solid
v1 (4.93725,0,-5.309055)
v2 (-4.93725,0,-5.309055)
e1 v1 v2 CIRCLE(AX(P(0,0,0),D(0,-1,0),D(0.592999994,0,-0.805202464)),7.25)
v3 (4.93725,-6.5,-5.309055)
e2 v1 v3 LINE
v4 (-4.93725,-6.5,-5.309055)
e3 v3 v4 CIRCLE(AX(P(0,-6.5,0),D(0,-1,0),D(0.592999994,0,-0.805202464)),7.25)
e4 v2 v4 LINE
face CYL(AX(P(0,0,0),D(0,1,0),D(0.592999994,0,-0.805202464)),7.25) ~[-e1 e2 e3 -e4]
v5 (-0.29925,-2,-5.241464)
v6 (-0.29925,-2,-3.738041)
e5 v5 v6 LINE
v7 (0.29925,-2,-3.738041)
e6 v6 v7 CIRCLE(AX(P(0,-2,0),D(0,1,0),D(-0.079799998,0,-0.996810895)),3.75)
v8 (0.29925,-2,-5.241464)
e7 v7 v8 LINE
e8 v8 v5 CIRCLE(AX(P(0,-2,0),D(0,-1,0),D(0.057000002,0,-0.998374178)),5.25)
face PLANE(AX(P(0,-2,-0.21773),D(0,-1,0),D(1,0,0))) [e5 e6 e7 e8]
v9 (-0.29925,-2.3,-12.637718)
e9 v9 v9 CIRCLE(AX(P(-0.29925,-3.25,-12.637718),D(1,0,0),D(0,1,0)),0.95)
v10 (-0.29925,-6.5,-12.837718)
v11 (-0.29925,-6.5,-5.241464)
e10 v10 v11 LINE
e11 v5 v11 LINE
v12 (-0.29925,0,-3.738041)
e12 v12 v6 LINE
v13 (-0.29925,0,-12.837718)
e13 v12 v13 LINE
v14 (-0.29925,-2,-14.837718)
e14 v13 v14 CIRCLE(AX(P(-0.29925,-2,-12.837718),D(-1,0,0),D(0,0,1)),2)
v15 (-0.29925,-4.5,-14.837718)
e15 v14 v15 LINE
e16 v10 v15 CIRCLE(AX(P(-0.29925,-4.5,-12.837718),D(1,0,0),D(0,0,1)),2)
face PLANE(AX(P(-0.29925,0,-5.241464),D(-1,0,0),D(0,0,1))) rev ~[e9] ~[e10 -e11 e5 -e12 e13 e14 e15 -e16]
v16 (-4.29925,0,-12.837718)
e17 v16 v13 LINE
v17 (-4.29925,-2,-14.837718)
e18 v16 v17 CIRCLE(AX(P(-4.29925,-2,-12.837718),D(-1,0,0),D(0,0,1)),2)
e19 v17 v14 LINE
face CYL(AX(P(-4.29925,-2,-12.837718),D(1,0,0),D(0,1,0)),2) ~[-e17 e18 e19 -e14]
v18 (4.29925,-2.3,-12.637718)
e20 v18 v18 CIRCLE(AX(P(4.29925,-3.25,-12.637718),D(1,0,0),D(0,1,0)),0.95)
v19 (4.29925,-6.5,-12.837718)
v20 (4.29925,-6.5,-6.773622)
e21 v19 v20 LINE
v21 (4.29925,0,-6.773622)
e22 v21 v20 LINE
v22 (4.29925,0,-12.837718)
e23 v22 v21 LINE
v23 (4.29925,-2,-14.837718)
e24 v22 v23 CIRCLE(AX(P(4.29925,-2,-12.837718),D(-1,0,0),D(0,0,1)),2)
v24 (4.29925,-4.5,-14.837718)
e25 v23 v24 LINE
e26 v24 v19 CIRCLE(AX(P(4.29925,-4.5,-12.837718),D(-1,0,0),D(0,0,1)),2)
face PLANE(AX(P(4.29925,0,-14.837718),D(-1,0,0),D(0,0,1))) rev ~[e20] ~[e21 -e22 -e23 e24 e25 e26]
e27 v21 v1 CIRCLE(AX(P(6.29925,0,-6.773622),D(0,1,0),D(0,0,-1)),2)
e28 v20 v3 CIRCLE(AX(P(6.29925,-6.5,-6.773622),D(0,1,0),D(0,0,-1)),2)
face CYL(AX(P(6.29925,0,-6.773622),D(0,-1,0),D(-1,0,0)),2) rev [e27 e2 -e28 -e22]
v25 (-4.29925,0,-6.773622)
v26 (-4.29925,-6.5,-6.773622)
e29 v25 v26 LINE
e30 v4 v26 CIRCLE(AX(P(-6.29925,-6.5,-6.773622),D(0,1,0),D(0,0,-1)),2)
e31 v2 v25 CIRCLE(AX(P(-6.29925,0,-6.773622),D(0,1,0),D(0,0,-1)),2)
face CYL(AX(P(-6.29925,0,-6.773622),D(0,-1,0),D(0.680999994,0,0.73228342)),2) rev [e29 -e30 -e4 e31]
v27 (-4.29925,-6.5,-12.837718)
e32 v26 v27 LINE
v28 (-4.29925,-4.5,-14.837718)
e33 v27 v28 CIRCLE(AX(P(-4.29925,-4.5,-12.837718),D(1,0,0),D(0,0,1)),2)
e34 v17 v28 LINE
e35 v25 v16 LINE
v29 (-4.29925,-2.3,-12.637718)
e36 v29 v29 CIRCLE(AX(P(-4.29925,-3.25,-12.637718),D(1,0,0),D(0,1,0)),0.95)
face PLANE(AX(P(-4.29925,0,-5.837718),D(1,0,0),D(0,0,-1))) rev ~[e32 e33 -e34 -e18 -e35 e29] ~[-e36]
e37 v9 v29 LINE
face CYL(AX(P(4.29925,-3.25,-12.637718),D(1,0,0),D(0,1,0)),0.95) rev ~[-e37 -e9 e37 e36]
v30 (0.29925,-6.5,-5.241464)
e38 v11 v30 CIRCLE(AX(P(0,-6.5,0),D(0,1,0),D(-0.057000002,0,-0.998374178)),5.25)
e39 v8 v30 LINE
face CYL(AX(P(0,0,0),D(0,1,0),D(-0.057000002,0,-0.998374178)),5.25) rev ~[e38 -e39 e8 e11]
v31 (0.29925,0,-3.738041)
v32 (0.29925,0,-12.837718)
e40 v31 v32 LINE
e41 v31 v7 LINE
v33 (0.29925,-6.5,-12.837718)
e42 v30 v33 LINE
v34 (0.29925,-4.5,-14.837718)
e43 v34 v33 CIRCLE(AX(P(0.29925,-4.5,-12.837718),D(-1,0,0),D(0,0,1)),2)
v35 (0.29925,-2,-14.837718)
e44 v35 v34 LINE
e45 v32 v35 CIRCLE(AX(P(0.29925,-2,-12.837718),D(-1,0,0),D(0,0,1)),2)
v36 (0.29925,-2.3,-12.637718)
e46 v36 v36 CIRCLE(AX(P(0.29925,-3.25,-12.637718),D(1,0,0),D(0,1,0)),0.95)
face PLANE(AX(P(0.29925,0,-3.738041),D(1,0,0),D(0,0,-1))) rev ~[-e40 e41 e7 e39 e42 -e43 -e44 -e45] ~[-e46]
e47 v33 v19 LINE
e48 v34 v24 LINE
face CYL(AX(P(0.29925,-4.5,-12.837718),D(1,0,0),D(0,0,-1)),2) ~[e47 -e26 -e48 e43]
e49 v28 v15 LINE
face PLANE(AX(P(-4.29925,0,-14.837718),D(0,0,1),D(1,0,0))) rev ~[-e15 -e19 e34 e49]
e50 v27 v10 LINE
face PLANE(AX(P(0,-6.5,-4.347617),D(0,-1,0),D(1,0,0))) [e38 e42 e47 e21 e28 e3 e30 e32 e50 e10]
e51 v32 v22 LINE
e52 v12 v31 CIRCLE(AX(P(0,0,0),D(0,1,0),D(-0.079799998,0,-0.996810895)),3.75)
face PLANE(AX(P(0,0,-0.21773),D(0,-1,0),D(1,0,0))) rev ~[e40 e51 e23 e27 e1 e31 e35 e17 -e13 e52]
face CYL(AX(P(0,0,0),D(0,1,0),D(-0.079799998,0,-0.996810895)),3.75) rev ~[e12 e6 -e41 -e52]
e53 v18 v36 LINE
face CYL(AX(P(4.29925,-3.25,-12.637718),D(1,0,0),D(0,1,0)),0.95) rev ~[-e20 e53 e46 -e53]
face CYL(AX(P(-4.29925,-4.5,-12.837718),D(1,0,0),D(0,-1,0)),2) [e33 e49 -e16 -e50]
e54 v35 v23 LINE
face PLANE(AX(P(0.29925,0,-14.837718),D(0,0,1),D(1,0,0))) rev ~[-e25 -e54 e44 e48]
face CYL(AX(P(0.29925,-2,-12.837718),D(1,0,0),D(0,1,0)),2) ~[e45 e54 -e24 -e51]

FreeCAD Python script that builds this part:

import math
import FreeCAD as App
import Part
import Sketcher
Q = App.Units.Quantity


def edges_at(feature, points):
    """Names of the edges that pass closest to the given points."""
    edges = feature.Shape.Edges
    near = lambda p: min(range(len(edges)), key=lambda i: edges[i].distToShape(Part.Vertex(*p))[0])
    return sorted({f"Edge{near(p) + 1}" for p in points})

doc = App.newDocument("Part")
params = doc.addObject("Spreadsheet::Sheet", "Params")
for row, (alias, value) in enumerate([
    ("sketch1_width", "4 mm"),
    ("sketch1_height", "9 mm"),
    ("sketch1_radius", "7.25 mm"),
    ("sketch1_radius2", "5.25 mm"),
    ("pad1_length", "6.5 mm"),
    ("sketch2_radius", "5.25 mm"),
    ("sketch2_radius2", "3.75 mm"),
    ("pad2_length", "2 mm"),
    ("sketch3_diameter", "1.9 mm"),
    ("pocket1_length", "25 mm"),
    ("fillet_radius", "2 mm"),
    ("fillet2_radius", "2 mm"),
], start=1):
    params.set(f"A{row}", alias)
    params.set(f"B{row}", "=" + value)
    params.setAlias(f"B{row}", alias)

body = doc.addObject("PartDesign::Body", "Body")

# Sketch on XZ plane
sketch1 = body.newObject("Sketcher::SketchObject", "Sketch")
sketch1.AttachmentSupport = (doc.getObject("XZ_Plane"), [""])
sketch1.MapMode = "FlatFace"
sketch1.addGeometry([
    Part.LineSegment(App.Vector(4.29925, -14.837718, 0), App.Vector(4.29925, -5.837718, 0)),  # 0
    Part.ArcOfCircle(Part.Circle(App.Vector(0, 0, 0), App.Vector(0, 0, 1), 7.25), math.radians(-53.629813), math.radians(233.629813)),  # 1
    Part.LineSegment(App.Vector(-4.29925, -5.837718, 0), App.Vector(-4.29925, -14.837718, 0)),  # 2
    Part.LineSegment(App.Vector(-4.29925, -14.837718, 0), App.Vector(-0.29925, -14.837718, 0)),  # 3
    Part.LineSegment(App.Vector(-0.29925, -14.837718, 0), App.Vector(-0.29925, -5.241464, 0)),  # 4
    Part.ArcOfCircle(Part.Circle(App.Vector(0, 0, 0), App.Vector(0, 0, 1), 5.25), math.radians(-86.732369), math.radians(266.732369)),  # 5
    Part.LineSegment(App.Vector(0.29925, -5.241464, 0), App.Vector(0.29925, -14.837718, 0)),  # 6
    Part.LineSegment(App.Vector(0.29925, -14.837718, 0), App.Vector(4.29925, -14.837718, 0)),  # 7
], False)
sketch1.addConstraint([
    Sketcher.Constraint("Coincident", 0, 2, 1, 1),
    Sketcher.Constraint("Coincident", 1, 2, 2, 1),
    Sketcher.Constraint("Coincident", 2, 2, 3, 1),
    Sketcher.Constraint("Coincident", 3, 2, 4, 1),
    Sketcher.Constraint("Coincident", 4, 2, 5, 2),
    Sketcher.Constraint("Coincident", 5, 1, 6, 1),
    Sketcher.Constraint("Coincident", 6, 2, 7, 1),
    Sketcher.Constraint("Coincident", 7, 2, 0, 1),
    Sketcher.Constraint("Vertical", 0),
    Sketcher.Constraint("Vertical", 2),
    Sketcher.Constraint("Horizontal", 3),
    Sketcher.Constraint("Vertical", 4),
    Sketcher.Constraint("Vertical", 6),
    Sketcher.Constraint("Horizontal", 7),
    Sketcher.Constraint("Coincident", 1, 3, -1, 1),
    Sketcher.Constraint("Coincident", 5, 3, -1, 1),
    Sketcher.Constraint("Symmetric", 3, 2, 6, 2, -2),
    Sketcher.Constraint("Horizontal", 0, 2, 1, 2),
    Sketcher.Constraint("DistanceX", 3, 1, 3, 2, Q("4 mm")),
    Sketcher.Constraint("DistanceY", 0, 1, 0, 2, Q("9 mm")),
    Sketcher.Constraint("Radius", 1, Q("7.25 mm")),
    Sketcher.Constraint("Radius", 5, Q("5.25 mm")),
    Sketcher.Constraint("DistanceX", 1, 2, 0, 2, Q("8.5985 mm")),
])
sketch1.setExpression("Constraints[18]", "Params.sketch1_width")
sketch1.setExpression("Constraints[19]", "Params.sketch1_height")
sketch1.setExpression("Constraints[20]", "Params.sketch1_radius")
sketch1.setExpression("Constraints[21]", "Params.sketch1_radius2")
pad1 = body.newObject("PartDesign::Pad", "Pad")
pad1.Profile = sketch1
pad1.setExpression("Length", "Params.pad1_length")

# Sketch on XZ plane
sketch2 = body.newObject("Sketcher::SketchObject", "Sketch001")
sketch2.AttachmentSupport = (doc.getObject("XZ_Plane"), [""])
sketch2.MapMode = "FlatFace"
sketch2.addGeometry([
    Part.LineSegment(App.Vector(0.29925, -3.738041, 0), App.Vector(0.29925, -5.241464, 0)),
    Part.ArcOfCircle(Part.Circle(App.Vector(0, 0, 0), App.Vector(0, 0, 1), 5.25), math.radians(-86.732369), math.radians(266.732369)),
    Part.LineSegment(App.Vector(-0.29925, -5.241464, 0), App.Vector(-0.29925, -3.738041, 0)),
    Part.ArcOfCircle(Part.Circle(App.Vector(0, 0, 0), App.Vector(0, 0, 1), 3.75), math.radians(-85.42293), math.radians(265.42293)),
], False)
sketch2.addConstraint([
    Sketcher.Constraint("Coincident", 0, 2, 1, 1),
    Sketcher.Constraint("Coincident", 1, 2, 2, 1),
    Sketcher.Constraint("Coincident", 2, 2, 3, 2),
    Sketcher.Constraint("Coincident", 3, 1, 0, 1),
    Sketcher.Constraint("Vertical", 0),
    Sketcher.Constraint("Vertical", 2),
    Sketcher.Constraint("Coincident", 1, 3, -1, 1),
    Sketcher.Constraint("Coincident", 3, 3, -1, 1),
    Sketcher.Constraint("Horizontal", 0, 2, 1, 2),
    Sketcher.Constraint("Radius", 1, Q("5.25 mm")),
    Sketcher.Constraint("Radius", 3, Q("3.75 mm")),
    Sketcher.Constraint("DistanceX", 1, 2, 0, 2, Q("0.5985 mm")),
])
sketch2.setExpression("Constraints[9]", "Params.sketch2_radius")
sketch2.setExpression("Constraints[10]", "Params.sketch2_radius2")
pad2 = body.newObject("PartDesign::Pad", "Pad001")
pad2.Profile = sketch2
pad2.setExpression("Length", "Params.pad2_length")

# Sketch on YZ plane
sketch3 = body.newObject("Sketcher::SketchObject", "Sketch002")
sketch3.AttachmentSupport = (doc.getObject("YZ_Plane"), [""])
sketch3.MapMode = "FlatFace"
sketch3.AttachmentOffset = App.Placement(App.Vector(0, 0, 4.29925), App.Rotation())
sketch3.addGeometry(Part.Circle(App.Vector(-3.25, -12.637718, 0), App.Vector(0, 0, 1), 0.95), False)
sketch3.addConstraint([
    Sketcher.Constraint("Diameter", 0, Q("1.9 mm")),
    Sketcher.Constraint("DistanceX", 0, 3, -1, 1, Q("3.25 mm")),
    Sketcher.Constraint("DistanceY", 0, 3, -1, 1, Q("12.637718 mm")),
])
sketch3.setExpression("Constraints[0]", "Params.sketch3_diameter")
pocket1 = body.newObject("PartDesign::Pocket", "Pocket")
pocket1.Profile = sketch3
pocket1.setExpression("Length", "Params.pocket1_length")
doc.recompute()

fillet = body.newObject("PartDesign::Fillet", "Fillet")
fillet.Base = (pocket1, edges_at(pocket1, [
    (2.299, 0, -14.838),
    (-2.299, 0, -14.838),
    (2.299, -6.5, -14.838),
    (-2.299, -6.5, -14.838),
]))
fillet.setExpression("Radius", "Params.fillet_radius")
doc.recompute()

fillet2 = body.newObject("PartDesign::Fillet", "Fillet001")
fillet2.Base = (fillet, edges_at(fillet, [(4.299, -3.25, -5.838), (-4.299, -3.25, -5.838)]))
fillet2.setExpression("Radius", "Params.fillet2_radius")

doc.recompute()
